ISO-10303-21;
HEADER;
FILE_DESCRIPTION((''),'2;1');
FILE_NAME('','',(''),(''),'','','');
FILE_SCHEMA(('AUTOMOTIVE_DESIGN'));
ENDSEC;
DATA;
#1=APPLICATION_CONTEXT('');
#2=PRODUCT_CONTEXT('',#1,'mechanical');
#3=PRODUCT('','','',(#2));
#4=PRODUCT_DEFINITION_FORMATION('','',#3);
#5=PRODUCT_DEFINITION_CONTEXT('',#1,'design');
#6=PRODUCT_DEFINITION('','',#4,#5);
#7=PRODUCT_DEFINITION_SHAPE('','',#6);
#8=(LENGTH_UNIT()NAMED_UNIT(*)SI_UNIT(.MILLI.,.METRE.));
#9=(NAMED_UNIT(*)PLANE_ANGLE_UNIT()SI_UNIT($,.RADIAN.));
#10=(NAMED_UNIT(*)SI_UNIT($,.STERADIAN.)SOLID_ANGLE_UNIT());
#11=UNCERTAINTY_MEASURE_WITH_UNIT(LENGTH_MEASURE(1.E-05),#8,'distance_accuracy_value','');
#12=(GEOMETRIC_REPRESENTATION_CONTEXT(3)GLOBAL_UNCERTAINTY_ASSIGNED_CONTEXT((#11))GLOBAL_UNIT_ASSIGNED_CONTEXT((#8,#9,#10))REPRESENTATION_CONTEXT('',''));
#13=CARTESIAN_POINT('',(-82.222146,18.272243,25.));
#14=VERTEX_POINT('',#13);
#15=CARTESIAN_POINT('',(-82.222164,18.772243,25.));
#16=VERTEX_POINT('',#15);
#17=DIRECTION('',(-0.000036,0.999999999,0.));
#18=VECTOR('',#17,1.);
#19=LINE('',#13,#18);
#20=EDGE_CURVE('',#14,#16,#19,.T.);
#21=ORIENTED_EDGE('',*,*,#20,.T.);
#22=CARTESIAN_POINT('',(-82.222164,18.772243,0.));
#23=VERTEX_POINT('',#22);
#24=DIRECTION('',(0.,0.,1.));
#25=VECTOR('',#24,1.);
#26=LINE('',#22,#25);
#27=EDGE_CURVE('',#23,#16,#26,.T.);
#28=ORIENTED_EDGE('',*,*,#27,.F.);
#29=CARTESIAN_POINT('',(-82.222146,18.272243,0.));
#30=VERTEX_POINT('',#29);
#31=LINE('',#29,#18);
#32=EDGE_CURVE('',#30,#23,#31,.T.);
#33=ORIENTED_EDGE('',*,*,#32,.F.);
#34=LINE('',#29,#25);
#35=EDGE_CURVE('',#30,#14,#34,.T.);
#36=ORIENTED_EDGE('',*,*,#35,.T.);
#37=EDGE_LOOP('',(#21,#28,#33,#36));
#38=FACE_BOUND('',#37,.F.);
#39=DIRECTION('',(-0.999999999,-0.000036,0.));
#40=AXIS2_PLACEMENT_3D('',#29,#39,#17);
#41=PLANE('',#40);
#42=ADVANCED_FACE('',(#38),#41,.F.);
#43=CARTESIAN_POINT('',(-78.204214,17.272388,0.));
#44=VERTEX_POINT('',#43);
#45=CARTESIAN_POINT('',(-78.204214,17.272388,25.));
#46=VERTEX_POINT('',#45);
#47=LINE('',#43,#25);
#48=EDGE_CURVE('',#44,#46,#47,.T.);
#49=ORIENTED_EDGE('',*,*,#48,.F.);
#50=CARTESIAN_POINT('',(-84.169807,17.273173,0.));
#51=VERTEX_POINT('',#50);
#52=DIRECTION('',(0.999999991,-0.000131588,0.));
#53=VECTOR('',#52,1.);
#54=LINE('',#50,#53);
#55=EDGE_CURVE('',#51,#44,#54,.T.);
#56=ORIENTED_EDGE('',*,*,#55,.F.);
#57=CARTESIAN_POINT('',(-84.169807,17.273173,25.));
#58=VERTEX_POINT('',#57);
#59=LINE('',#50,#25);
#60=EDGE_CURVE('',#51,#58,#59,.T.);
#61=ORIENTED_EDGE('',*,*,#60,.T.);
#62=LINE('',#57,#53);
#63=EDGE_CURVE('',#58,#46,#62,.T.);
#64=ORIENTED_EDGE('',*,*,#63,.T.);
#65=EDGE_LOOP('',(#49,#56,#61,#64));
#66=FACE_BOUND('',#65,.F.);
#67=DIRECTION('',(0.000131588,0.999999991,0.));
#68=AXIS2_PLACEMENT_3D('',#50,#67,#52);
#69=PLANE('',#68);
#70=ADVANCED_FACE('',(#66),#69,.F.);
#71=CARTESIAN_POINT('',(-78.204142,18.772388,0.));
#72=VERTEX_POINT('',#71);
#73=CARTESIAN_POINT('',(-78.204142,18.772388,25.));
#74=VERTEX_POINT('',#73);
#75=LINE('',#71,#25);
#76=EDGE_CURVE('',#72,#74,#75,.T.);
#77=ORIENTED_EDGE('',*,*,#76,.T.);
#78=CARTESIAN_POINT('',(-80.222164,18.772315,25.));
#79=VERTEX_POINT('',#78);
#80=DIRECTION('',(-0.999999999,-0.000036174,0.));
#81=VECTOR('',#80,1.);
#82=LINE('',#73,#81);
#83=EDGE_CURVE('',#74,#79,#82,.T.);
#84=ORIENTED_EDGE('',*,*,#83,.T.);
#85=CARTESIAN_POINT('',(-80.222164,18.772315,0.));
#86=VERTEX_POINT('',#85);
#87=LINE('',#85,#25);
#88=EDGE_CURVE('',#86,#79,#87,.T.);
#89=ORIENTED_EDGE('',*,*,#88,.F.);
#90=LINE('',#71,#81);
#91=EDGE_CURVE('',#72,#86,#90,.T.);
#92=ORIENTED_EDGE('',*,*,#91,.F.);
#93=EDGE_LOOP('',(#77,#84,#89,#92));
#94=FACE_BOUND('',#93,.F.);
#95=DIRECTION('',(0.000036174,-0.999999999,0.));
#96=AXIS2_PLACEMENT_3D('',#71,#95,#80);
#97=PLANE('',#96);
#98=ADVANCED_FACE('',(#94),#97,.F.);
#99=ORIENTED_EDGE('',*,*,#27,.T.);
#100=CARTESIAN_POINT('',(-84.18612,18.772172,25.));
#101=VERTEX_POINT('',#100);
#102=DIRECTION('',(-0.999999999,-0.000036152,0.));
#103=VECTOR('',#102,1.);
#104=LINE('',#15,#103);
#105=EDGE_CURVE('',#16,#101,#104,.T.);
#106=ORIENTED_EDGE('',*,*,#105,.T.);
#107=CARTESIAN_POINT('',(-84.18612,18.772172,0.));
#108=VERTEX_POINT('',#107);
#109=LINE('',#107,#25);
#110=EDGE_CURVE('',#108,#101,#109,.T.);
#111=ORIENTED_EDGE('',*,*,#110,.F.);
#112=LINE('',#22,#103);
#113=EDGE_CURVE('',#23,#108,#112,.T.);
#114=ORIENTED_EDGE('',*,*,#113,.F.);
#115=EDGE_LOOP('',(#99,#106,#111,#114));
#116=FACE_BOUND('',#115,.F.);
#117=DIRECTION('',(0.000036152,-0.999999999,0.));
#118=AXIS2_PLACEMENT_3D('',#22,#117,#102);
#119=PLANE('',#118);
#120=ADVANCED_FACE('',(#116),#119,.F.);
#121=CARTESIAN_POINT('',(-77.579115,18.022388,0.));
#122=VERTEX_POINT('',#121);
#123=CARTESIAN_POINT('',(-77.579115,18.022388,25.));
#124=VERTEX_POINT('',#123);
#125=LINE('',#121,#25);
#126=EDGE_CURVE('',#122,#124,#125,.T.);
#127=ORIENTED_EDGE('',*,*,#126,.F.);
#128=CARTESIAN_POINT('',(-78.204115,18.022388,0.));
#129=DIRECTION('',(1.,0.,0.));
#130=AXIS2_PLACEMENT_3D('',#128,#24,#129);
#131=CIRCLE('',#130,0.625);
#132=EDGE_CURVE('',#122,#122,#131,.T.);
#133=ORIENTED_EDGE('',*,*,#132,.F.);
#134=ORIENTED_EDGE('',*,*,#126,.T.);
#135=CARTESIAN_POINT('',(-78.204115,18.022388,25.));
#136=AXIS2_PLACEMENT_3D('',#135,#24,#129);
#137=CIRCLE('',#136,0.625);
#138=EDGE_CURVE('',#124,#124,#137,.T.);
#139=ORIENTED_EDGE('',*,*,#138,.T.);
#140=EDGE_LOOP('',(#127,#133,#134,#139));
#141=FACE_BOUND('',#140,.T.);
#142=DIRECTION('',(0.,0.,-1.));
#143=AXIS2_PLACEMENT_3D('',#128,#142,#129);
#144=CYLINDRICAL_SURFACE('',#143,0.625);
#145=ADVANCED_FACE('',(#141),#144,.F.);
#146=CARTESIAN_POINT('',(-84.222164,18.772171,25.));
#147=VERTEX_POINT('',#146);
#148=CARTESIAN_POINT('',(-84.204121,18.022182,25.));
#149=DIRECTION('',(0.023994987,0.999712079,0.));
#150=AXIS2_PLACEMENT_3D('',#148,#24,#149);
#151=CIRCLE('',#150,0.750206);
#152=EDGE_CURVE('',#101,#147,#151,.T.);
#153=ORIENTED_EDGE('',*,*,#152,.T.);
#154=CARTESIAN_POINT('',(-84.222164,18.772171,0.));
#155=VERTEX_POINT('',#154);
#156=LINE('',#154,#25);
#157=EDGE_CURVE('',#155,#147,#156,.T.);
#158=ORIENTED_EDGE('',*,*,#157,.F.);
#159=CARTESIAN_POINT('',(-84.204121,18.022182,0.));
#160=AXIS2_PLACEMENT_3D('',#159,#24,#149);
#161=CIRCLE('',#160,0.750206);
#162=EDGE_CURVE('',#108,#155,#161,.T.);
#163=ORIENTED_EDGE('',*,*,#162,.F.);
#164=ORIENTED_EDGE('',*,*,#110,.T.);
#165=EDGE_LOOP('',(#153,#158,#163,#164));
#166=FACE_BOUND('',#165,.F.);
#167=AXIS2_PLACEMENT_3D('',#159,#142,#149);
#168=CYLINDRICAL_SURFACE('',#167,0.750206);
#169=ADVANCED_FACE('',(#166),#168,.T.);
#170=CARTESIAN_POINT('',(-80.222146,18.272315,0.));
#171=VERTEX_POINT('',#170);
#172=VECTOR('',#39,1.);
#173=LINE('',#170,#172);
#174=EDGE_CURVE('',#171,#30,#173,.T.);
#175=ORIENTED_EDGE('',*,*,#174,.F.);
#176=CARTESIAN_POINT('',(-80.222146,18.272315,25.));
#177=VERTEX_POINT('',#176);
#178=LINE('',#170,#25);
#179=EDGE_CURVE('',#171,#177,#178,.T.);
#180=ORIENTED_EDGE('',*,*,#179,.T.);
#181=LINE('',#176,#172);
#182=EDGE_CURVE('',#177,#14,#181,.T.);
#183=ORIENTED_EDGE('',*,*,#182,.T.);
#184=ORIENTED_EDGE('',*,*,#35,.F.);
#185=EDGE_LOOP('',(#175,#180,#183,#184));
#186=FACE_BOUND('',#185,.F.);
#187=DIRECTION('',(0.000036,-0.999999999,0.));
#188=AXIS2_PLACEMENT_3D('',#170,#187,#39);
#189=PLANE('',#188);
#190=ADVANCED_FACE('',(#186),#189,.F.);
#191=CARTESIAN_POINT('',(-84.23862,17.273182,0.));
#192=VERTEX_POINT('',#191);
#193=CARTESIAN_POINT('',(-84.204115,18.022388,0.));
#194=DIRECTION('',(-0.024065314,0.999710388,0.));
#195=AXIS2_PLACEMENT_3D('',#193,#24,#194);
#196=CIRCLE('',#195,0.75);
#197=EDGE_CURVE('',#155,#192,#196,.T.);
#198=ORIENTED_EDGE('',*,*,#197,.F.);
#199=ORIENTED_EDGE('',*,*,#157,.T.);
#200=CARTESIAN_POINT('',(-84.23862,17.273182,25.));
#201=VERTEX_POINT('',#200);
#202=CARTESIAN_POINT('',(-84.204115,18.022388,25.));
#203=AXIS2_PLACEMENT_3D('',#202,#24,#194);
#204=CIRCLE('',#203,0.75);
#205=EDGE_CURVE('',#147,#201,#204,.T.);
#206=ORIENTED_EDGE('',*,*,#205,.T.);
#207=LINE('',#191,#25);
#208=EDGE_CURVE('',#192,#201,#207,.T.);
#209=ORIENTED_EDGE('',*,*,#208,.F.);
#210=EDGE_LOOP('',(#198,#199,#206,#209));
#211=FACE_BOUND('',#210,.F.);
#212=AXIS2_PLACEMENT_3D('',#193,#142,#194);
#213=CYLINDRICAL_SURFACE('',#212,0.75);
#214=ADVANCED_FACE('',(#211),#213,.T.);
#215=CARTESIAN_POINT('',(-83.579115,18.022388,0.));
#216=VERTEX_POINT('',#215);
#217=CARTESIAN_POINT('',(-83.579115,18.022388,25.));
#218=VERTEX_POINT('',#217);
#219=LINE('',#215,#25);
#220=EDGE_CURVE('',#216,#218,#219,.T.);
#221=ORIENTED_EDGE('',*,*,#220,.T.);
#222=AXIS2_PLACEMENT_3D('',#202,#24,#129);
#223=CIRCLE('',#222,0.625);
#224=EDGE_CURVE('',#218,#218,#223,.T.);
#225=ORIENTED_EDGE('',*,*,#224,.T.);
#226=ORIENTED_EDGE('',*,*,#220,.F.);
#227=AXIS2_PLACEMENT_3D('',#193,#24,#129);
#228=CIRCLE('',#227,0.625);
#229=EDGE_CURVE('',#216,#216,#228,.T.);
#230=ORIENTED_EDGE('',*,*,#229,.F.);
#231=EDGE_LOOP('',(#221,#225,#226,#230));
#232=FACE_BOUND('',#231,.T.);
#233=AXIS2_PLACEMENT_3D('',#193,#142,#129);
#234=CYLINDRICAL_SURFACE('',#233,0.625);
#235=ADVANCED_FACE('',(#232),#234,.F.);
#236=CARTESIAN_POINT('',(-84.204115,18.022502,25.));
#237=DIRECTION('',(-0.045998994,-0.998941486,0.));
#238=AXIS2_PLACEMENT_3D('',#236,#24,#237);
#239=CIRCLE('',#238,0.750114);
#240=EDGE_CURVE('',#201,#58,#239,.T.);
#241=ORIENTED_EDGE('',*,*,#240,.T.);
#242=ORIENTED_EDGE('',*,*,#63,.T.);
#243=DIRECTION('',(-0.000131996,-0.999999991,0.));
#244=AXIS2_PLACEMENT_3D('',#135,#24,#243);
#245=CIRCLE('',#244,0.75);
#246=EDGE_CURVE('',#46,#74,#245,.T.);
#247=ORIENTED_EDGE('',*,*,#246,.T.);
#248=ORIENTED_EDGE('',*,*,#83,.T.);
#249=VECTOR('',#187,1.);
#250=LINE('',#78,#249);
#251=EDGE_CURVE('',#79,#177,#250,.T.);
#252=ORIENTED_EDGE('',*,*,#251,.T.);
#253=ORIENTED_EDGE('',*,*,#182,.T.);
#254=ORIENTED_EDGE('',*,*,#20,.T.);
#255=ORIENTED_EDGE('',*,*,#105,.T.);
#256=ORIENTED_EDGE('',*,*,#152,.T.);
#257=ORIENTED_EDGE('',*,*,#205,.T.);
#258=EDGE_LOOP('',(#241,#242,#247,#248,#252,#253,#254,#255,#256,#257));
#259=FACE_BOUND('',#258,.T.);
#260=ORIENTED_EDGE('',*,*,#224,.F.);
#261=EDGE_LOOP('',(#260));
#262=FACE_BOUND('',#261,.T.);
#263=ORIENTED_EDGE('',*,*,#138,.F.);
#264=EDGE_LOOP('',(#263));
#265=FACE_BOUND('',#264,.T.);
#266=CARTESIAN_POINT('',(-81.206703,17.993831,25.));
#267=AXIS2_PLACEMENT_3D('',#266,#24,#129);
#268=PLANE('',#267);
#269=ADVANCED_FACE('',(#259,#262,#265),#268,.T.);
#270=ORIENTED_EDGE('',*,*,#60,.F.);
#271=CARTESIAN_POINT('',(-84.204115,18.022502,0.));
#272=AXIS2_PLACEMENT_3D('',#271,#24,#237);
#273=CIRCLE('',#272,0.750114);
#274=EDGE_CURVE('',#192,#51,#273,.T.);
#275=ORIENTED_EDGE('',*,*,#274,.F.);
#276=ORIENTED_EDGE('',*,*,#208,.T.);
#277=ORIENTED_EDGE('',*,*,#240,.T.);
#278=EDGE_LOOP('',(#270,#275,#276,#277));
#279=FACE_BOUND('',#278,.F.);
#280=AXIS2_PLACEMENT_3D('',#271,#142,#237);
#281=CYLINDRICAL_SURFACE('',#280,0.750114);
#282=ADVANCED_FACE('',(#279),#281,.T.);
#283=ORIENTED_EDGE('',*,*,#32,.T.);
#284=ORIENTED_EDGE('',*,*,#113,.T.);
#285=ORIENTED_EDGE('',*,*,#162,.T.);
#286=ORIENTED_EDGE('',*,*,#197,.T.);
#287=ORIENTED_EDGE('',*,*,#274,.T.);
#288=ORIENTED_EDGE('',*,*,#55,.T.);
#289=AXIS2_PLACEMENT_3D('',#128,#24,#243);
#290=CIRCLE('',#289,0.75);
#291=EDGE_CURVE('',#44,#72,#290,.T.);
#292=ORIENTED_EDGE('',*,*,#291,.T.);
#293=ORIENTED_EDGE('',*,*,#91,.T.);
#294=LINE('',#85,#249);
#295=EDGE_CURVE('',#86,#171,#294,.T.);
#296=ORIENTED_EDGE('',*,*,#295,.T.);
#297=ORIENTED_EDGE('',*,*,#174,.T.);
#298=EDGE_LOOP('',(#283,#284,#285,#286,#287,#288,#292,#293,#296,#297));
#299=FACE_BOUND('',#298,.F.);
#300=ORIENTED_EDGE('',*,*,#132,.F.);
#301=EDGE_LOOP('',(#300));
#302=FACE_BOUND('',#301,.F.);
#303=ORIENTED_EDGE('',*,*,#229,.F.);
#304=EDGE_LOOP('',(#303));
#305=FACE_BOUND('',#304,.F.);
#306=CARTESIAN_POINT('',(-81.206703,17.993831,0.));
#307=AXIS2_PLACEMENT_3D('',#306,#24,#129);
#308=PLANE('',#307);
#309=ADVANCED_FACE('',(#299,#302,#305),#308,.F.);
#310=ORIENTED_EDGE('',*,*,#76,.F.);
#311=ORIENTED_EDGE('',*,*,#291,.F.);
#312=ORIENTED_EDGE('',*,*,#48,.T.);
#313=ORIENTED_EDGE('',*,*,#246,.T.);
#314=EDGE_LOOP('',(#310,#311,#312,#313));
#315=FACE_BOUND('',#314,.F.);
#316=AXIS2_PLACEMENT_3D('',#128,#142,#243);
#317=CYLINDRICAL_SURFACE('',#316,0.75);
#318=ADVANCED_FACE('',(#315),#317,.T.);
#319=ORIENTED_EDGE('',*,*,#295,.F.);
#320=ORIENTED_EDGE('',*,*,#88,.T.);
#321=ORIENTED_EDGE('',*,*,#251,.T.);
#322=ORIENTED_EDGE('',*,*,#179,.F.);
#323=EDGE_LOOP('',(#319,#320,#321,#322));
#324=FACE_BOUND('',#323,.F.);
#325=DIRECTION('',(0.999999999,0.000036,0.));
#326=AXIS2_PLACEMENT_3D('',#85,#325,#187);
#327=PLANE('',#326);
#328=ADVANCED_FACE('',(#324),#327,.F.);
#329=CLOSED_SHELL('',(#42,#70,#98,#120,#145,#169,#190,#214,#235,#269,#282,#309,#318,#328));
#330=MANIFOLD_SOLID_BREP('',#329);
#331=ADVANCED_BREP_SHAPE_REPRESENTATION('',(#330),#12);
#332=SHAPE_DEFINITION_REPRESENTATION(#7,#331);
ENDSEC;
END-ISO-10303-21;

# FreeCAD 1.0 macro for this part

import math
import FreeCAD as App
import Part
import Sketcher
Q = App.Units.Quantity

doc = App.newDocument("Part")
body = doc.addObject("PartDesign::Body", "Body")

sketch1 = body.newObject("Sketcher::SketchObject", "Sketch")
sketch1.AttachmentSupport = (doc.getObject("XY_Plane"), [""])
sketch1.MapMode = "FlatFace"
sketch1.addGeometry(Part.LineSegment(App.Vector(-84.169807, 17.273173, 0), App.Vector(-78.204214, 17.272388, 0)), False)
sketch1.addGeometry(Part.ArcOfCircle(Part.Circle(App.Vector(-78.204115, 18.022388, 0), App.Vector(0, 0, 1), 0.75), math.radians(-90.007563), math.radians(90.002062)), False)
sketch1.addGeometry(Part.LineSegment(App.Vector(-78.204142, 18.772388, 0), App.Vector(-80.222164, 18.772315, 0)), False)
sketch1.addGeometry(Part.LineSegment(App.Vector(-80.222164, 18.772315, 0), App.Vector(-80.222146, 18.272315, 0)), False)
sketch1.addGeometry(Part.LineSegment(App.Vector(-80.222146, 18.272315, 0), App.Vector(-82.222146, 18.272243, 0)), False)
sketch1.addGeometry(Part.LineSegment(App.Vector(-82.222146, 18.272243, 0), App.Vector(-82.222164, 18.772243, 0)), False)
sketch1.addGeometry(Part.LineSegment(App.Vector(-82.222164, 18.772243, 0), App.Vector(-84.18612, 18.772172, 0)), False)
sketch1.addGeometry(Part.ArcOfCircle(Part.Circle(App.Vector(-84.204121, 18.022182, 0), App.Vector(0, 0, 1), 0.750206), math.radians(88.625057), math.radians(91.378123)), False)
sketch1.addGeometry(Part.ArcOfCircle(Part.Circle(App.Vector(-84.204115, 18.022388, 0), App.Vector(0, 0, 1), 0.75), math.radians(91.378974), math.radians(267.363083)), False)
sketch1.addGeometry(Part.ArcOfCircle(Part.Circle(App.Vector(-84.204115, 18.022502, 0), App.Vector(0, 0, 1), 0.750114), math.radians(-92.636479), math.radians(-87.378509)), False)
sketch1.addGeometry(Part.Circle(App.Vector(-84.204115, 18.022388, 0), App.Vector(0, 0, 1), 0.625), False)
sketch1.addGeometry(Part.Circle(App.Vector(-78.204115, 18.022388, 0), App.Vector(0, 0, 1), 0.625), False)
sketch1.addConstraint(Sketcher.Constraint("Coincident", 0, 2, 1, 1))
sketch1.addConstraint(Sketcher.Constraint("Coincident", 1, 2, 2, 1))
sketch1.addConstraint(Sketcher.Constraint("Coincident", 2, 2, 3, 1))
sketch1.addConstraint(Sketcher.Constraint("Coincident", 3, 2, 4, 1))
sketch1.addConstraint(Sketcher.Constraint("Coincident", 4, 2, 5, 1))
sketch1.addConstraint(Sketcher.Constraint("Coincident", 5, 2, 6, 1))
sketch1.addConstraint(Sketcher.Constraint("Coincident", 6, 2, 7, 1))
sketch1.addConstraint(Sketcher.Constraint("Coincident", 7, 2, 8, 1))
sketch1.addConstraint(Sketcher.Constraint("Coincident", 8, 2, 9, 1))
sketch1.addConstraint(Sketcher.Constraint("Coincident", 9, 2, 0, 1))
sketch1.addConstraint(Sketcher.Constraint("Coincident", 10, 3, 8, 3))
sketch1.addConstraint(Sketcher.Constraint("Coincident", 11, 3, 1, 3))
sketch1.addConstraint(Sketcher.Constraint("Diameter", 10, Q("1.25 mm")))
sketch1.addConstraint(Sketcher.Constraint("Diameter", 11, Q("1.25 mm")))
sketch1.addConstraint(Sketcher.Constraint("Radius", 1, Q("0.75 mm")))
sketch1.addConstraint(Sketcher.Constraint("Radius", 8, Q("0.75 mm")))
sketch1.addConstraint(Sketcher.Constraint("Distance", 4, Q("2 mm")))
sketch1.addConstraint(Sketcher.Constraint("DistanceX", 8, 3, 1, 3, Q("6 mm")))
sketch1.addConstraint(Sketcher.Constraint("DistanceX", 9, 3, 1, 3, Q("6 mm")))
sketch1.addConstraint(Sketcher.Constraint("DistanceX", 5, 2, 2, 2, Q("2 mm")))
sketch1.addConstraint(Sketcher.Constraint("Distance", 3, Q("0.5 mm")))
sketch1.addConstraint(Sketcher.Constraint("Distance", 5, Q("0.5 mm")))
sketch1.addConstraint(Sketcher.Constraint("DistanceY", 0, 2, 10, 3, Q("0.75 mm")))
sketch1.addConstraint(Sketcher.Constraint("Radius", 7, Q("0.750206 mm")))
sketch1.addConstraint(Sketcher.Constraint("Radius", 9, Q("0.750114 mm")))
sketch1.addConstraint(Sketcher.Constraint("DistanceX", 7, 3, 6, 2, Q("0.018001 mm")))
sketch1.addConstraint(Sketcher.Constraint("DistanceY", 8, 2, 7, 3, Q("0.749 mm")))
sketch1.addConstraint(Sketcher.Constraint("DistanceX", 10, 3, 0, 2, Q("5.999901 mm")))
sketch1.addConstraint(Sketcher.Constraint("DistanceX", 8, 2, 7, 3, Q("0.034499 mm")))
sketch1.addConstraint(Sketcher.Constraint("DistanceX", 7, 3, -1, 1, Q("84.204121 mm")))
sketch1.addConstraint(Sketcher.Constraint("DistanceY", -1, 1, 7, 3, Q("18.022182 mm")))
sketch1.addConstraint(Sketcher.Constraint("DistanceY", -1, 1, 7, 2, Q("18.772171 mm")))
sketch1.addConstraint(Sketcher.Constraint("DistanceX", 2, 2, 1, 2, Q("2.018022 mm")))
sketch1.addConstraint(Sketcher.Constraint("DistanceX", 2, 2, 1, 3, Q("2.018049 mm")))
sketch1.addConstraint(Sketcher.Constraint("DistanceX", 3, 2, 1, 3, Q("2.018031 mm")))
sketch1.addConstraint(Sketcher.Constraint("DistanceY", 9, 3, 4, 2, Q("0.249741 mm")))
sketch1.addConstraint(Sketcher.Constraint("DistanceY", 3, 2, 5, 2, Q("0.499928 mm")))
sketch1.addConstraint(Sketcher.Constraint("DistanceY", 9, 2, 7, 3, Q("0.749009 mm")))
pad1 = body.newObject("PartDesign::Pad", "Pad")
pad1.Profile = sketch1
pad1.Length = 25

doc.recompute()
